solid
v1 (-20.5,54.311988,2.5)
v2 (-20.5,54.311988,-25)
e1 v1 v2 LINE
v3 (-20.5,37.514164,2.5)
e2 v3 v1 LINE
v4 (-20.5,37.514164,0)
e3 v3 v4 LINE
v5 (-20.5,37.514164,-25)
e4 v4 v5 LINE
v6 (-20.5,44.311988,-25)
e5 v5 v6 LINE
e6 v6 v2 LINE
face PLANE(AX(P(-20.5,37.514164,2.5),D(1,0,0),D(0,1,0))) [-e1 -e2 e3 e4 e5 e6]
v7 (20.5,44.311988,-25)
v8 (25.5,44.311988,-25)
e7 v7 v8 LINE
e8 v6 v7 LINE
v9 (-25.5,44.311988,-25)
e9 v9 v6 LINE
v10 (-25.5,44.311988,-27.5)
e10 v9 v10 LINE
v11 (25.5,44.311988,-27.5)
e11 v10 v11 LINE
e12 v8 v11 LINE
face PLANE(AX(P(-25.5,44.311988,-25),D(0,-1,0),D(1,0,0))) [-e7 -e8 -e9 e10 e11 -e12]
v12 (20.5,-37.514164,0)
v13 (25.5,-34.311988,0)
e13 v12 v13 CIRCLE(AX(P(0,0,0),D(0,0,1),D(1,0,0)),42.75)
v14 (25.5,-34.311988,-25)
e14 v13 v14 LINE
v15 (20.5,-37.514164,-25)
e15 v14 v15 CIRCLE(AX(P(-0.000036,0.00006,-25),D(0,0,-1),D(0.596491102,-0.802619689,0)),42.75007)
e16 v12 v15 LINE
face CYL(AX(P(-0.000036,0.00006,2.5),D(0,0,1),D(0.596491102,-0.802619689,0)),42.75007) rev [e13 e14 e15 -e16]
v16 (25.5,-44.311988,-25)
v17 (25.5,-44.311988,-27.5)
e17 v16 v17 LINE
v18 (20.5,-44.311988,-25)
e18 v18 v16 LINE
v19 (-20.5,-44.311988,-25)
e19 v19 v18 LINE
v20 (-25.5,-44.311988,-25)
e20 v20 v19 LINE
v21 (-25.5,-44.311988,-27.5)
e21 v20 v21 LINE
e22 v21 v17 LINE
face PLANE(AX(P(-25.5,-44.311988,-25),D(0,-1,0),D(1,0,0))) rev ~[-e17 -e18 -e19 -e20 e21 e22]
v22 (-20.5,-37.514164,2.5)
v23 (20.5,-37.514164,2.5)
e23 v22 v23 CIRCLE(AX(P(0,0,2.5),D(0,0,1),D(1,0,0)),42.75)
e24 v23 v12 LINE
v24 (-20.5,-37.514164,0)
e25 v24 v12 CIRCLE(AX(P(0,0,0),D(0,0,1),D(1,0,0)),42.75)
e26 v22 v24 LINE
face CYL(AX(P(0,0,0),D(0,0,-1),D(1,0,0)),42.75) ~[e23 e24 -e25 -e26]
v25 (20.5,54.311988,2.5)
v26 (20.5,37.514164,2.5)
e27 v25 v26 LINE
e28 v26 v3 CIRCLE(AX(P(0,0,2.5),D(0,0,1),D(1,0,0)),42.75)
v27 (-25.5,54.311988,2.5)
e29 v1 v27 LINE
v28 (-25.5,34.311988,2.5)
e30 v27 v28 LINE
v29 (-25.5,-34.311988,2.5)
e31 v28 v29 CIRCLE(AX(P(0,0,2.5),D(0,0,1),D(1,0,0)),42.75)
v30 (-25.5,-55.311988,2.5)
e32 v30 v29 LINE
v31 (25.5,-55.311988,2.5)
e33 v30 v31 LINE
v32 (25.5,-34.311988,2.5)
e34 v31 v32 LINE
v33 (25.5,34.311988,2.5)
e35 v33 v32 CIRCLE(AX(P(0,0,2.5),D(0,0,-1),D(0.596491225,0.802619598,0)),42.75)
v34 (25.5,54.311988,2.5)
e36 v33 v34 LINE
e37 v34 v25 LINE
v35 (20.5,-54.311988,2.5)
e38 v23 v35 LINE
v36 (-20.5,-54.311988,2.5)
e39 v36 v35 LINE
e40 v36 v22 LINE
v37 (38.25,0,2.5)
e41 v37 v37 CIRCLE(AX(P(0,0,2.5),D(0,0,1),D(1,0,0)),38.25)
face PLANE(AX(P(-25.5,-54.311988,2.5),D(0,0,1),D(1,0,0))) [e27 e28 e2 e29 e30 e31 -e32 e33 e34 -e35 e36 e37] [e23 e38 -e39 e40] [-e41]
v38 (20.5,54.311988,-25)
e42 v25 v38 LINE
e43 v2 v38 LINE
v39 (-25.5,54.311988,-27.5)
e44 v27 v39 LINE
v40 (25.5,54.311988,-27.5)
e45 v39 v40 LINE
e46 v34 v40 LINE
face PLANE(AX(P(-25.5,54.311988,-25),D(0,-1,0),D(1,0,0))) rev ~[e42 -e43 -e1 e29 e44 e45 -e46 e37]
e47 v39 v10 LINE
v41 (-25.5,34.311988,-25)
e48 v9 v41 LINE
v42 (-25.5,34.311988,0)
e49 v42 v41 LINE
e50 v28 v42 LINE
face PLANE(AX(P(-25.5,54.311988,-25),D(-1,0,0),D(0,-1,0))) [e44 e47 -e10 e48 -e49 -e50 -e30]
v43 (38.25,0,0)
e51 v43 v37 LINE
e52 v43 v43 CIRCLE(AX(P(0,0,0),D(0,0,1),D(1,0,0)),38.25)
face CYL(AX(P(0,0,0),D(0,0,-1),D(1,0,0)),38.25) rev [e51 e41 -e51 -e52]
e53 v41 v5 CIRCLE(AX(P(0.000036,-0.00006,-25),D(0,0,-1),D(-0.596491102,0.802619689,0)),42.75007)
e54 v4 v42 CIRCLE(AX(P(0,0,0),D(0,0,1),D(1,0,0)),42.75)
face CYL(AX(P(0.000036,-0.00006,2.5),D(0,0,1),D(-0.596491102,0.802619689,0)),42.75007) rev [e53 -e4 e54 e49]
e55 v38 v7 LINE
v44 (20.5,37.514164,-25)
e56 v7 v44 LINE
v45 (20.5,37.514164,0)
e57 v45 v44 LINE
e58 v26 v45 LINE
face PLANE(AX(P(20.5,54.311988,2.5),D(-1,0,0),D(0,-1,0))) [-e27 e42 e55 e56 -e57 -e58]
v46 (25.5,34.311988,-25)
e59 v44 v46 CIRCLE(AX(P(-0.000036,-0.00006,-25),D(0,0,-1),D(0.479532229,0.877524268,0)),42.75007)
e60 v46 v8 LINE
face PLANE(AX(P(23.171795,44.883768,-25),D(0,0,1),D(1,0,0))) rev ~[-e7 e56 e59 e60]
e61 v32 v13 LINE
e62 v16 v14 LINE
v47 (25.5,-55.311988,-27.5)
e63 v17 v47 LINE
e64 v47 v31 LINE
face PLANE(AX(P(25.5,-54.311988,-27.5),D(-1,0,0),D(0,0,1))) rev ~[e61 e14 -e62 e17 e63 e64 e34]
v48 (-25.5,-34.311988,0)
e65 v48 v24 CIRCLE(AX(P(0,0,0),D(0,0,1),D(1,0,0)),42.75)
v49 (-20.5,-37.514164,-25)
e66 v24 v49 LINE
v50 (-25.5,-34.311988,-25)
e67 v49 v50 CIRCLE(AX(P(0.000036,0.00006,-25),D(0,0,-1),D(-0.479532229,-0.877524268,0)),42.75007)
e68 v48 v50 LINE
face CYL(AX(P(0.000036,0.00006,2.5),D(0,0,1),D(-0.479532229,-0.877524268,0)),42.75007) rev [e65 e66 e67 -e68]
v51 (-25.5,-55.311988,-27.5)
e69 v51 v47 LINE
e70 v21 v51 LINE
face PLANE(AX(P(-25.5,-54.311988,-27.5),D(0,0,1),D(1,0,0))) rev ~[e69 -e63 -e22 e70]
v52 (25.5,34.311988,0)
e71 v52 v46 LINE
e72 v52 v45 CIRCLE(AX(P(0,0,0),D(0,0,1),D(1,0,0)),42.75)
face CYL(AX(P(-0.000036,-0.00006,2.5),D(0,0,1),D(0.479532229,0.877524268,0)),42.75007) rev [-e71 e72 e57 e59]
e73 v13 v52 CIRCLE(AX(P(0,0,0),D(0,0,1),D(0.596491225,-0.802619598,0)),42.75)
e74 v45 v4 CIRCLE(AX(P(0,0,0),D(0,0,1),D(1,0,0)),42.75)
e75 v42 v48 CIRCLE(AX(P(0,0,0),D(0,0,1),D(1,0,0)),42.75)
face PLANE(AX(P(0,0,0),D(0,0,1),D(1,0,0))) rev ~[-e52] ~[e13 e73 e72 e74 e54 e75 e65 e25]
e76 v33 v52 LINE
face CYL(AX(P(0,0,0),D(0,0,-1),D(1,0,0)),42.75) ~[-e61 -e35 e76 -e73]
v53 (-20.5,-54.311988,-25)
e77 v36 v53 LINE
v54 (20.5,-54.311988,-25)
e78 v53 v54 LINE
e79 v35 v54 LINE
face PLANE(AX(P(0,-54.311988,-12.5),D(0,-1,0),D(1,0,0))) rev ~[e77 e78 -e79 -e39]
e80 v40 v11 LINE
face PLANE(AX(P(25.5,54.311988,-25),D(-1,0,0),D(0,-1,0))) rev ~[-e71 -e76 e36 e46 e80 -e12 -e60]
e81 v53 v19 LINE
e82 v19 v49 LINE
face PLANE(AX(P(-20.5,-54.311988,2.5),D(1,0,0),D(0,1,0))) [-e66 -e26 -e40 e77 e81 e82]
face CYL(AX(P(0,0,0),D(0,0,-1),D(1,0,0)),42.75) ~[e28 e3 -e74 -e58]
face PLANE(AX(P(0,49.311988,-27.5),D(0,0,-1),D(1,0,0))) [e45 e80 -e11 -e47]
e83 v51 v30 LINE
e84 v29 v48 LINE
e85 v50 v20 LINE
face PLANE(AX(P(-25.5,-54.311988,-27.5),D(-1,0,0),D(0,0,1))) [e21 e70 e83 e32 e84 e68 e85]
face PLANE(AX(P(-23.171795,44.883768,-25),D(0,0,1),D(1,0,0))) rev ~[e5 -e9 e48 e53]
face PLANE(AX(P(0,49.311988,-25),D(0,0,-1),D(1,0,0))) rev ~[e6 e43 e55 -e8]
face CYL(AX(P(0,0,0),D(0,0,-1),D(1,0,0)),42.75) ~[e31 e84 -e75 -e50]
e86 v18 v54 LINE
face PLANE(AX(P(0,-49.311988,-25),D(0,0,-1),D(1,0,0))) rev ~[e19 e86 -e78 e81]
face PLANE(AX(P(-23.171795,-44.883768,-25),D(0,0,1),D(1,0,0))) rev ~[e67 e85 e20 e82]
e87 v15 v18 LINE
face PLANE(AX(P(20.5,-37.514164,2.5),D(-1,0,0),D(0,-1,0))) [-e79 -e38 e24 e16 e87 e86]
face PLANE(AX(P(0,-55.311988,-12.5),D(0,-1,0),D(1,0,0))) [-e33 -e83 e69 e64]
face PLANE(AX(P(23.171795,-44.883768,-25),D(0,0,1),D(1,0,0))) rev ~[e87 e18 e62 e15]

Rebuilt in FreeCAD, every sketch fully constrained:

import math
import FreeCAD as App
import Part
import Sketcher
Q = App.Units.Quantity

doc = App.newDocument("Part")
body = doc.addObject("PartDesign::Body", "Body")

# Sketch on XY plane
sketch1 = body.newObject("Sketcher::SketchObject", "Sketch")
sketch1.AttachmentSupport = (doc.getObject("XY_Plane"), [""])
sketch1.MapMode = "FlatFace"
sketch1.addGeometry(Part.Circle(App.Vector(0, 0, 0), App.Vector(0, 0, 1), 43), False)
sketch1.addGeometry(Part.Circle(App.Vector(0, 0, 0), App.Vector(0, 0, 1), 38), False)
sketch1.addConstraint(Sketcher.Constraint("Coincident", 0, 3, -1, 1))
sketch1.addConstraint(Sketcher.Constraint("Coincident", 1, 3, -1, 1))
sketch1.addConstraint(Sketcher.Constraint("Diameter", 0, Q("85.5 mm")))
sketch1.addConstraint(Sketcher.Constraint("Diameter", 1, Q("76.5 mm")))
pad1 = body.newObject("PartDesign::Pad", "Pad")
pad1.Profile = sketch1
pad1.Length = 2.5

# Sketch on XY plane
sketch2 = body.newObject("Sketcher::SketchObject", "Sketch001")
sketch2.AttachmentSupport = (doc.getObject("XY_Plane"), [""])
sketch2.MapMode = "FlatFace"
sketch2.AttachmentOffset = App.Placement(App.Vector(0, 0, 2.5), App.Rotation())
sketch2.addGeometry(Part.LineSegment(App.Vector(26, -54, 0), App.Vector(26, -34, 0)), False)
sketch2.addGeometry(Part.ArcOfCircle(Part.Circle(App.Vector(0, 0, 0), App.Vector(0, 0, 1), 43), math.radians(-61.35), math.radians(-53.38)), False)
sketch2.addGeometry(Part.LineSegment(App.Vector(20, -38, 0), App.Vector(20, -54, 0)), False)
sketch2.addGeometry(Part.LineSegment(App.Vector(20, -54, 0), App.Vector(26, -54, 0)), False)
sketch2.addGeometry(Part.ArcOfCircle(Part.Circle(App.Vector(0, 0, 0), App.Vector(0, 0, 1), 43), math.radians(-126.62), math.radians(-118.65)), False)
sketch2.addGeometry(Part.LineSegment(App.Vector(-26, -34, 0), App.Vector(-26, -54, 0)), False)
sketch2.addGeometry(Part.LineSegment(App.Vector(-26, -54, 0), App.Vector(-20, -54, 0)), False)
sketch2.addGeometry(Part.LineSegment(App.Vector(-20, -54, 0), App.Vector(-20, -38, 0)), False)
sketch2.addGeometry(Part.ArcOfCircle(Part.Circle(App.Vector(0, 0, 0), App.Vector(0, 0, 1), 43), math.radians(53.38), math.radians(61.35)), False)
sketch2.addGeometry(Part.LineSegment(App.Vector(26, 34, 0), App.Vector(26, 54, 0)), False)
sketch2.addGeometry(Part.LineSegment(App.Vector(26, 54, 0), App.Vector(20, 54, 0)), False)
sketch2.addGeometry(Part.LineSegment(App.Vector(20, 54, 0), App.Vector(20, 38, 0)), False)
sketch2.addGeometry(Part.LineSegment(App.Vector(-20, 54, 0), App.Vector(-26, 54, 0)), False)
sketch2.addGeometry(Part.LineSegment(App.Vector(-26, 54, 0), App.Vector(-26, 34, 0)), False)
sketch2.addGeometry(Part.ArcOfCircle(Part.Circle(App.Vector(0, 0, 0), App.Vector(0, 0, 1), 43), math.radians(118.65), math.radians(126.62)), False)
sketch2.addGeometry(Part.LineSegment(App.Vector(-20, 38, 0), App.Vector(-20, 54, 0)), False)
sketch2.addConstraint(Sketcher.Constraint("Coincident", 0, 2, 1, 2))
sketch2.addConstraint(Sketcher.Constraint("Coincident", 1, 1, 2, 1))
sketch2.addConstraint(Sketcher.Constraint("Coincident", 2, 2, 3, 1))
sketch2.addConstraint(Sketcher.Constraint("Coincident", 3, 2, 0, 1))
sketch2.addConstraint(Sketcher.Constraint("Coincident", 4, 1, 5, 1))
sketch2.addConstraint(Sketcher.Constraint("Coincident", 5, 2, 6, 1))
sketch2.addConstraint(Sketcher.Constraint("Coincident", 6, 2, 7, 1))
sketch2.addConstraint(Sketcher.Constraint("Coincident", 7, 2, 4, 2))
sketch2.addConstraint(Sketcher.Constraint("Coincident", 8, 1, 9, 1))
sketch2.addConstraint(Sketcher.Constraint("Coincident", 9, 2, 10, 1))
sketch2.addConstraint(Sketcher.Constraint("Coincident", 10, 2, 11, 1))
sketch2.addConstraint(Sketcher.Constraint("Coincident", 11, 2, 8, 2))
sketch2.addConstraint(Sketcher.Constraint("Coincident", 12, 2, 13, 1))
sketch2.addConstraint(Sketcher.Constraint("Coincident", 13, 2, 14, 2))
sketch2.addConstraint(Sketcher.Constraint("Coincident", 14, 1, 15, 1))
sketch2.addConstraint(Sketcher.Constraint("Coincident", 15, 2, 12, 1))
sketch2.addConstraint(Sketcher.Constraint("Vertical", 0))
sketch2.addConstraint(Sketcher.Constraint("Vertical", 2))
sketch2.addConstraint(Sketcher.Constraint("Horizontal", 3))
sketch2.addConstraint(Sketcher.Constraint("Vertical", 5))
sketch2.addConstraint(Sketcher.Constraint("Horizontal", 6))
sketch2.addConstraint(Sketcher.Constraint("Vertical", 7))
sketch2.addConstraint(Sketcher.Constraint("Vertical", 9))
sketch2.addConstraint(Sketcher.Constraint("Horizontal", 10))
sketch2.addConstraint(Sketcher.Constraint("Vertical", 11))
sketch2.addConstraint(Sketcher.Constraint("Horizontal", 12))
sketch2.addConstraint(Sketcher.Constraint("Vertical", 13))
sketch2.addConstraint(Sketcher.Constraint("Vertical", 15))
sketch2.addConstraint(Sketcher.Constraint("Equal", 1, 4))
sketch2.addConstraint(Sketcher.Constraint("Equal", 4, 8))
sketch2.addConstraint(Sketcher.Constraint("Equal", 8, 14))
sketch2.addConstraint(Sketcher.Constraint("Symmetric", 4, 3, 8, 3, -1, 1))
sketch2.addConstraint(Sketcher.Constraint("Symmetric", 1, 3, 14, 3, -1, 1))
sketch2.addConstraint(Sketcher.Constraint("Symmetric", 5, 2, 9, 2, -1, 1))
sketch2.addConstraint(Sketcher.Constraint("Symmetric", 3, 2, 12, 2, -1, 1))
sketch2.addConstraint(Sketcher.Constraint("Symmetric", 1, 3, 4, 3, -2))
sketch2.addConstraint(Sketcher.Constraint("Symmetric", 3, 2, 5, 2, -2))
sketch2.addConstraint(Sketcher.Constraint("Horizontal", 1, 1, 7, 2))
sketch2.addConstraint(Sketcher.Constraint("Horizontal", 11, 2, 14, 1))
sketch2.addConstraint(Sketcher.Constraint("Vertical", 2, 2, 10, 2))
sketch2.addConstraint(Sketcher.Constraint("DistanceX", 3, 1, 3, 2, Q("5 mm")))
sketch2.addConstraint(Sketcher.Constraint("DistanceY", 0, 1, 0, 2, Q("20 mm")))
sketch2.addConstraint(Sketcher.Constraint("DistanceX", 4, 1, 1, 1, Q("46 mm")))
sketch2.addConstraint(Sketcher.Constraint("Radius", 1, Q("42.75007 mm")))
sketch2.addConstraint(Sketcher.Constraint("DistanceY", 2, 2, 2, 1, Q("16.797824 mm")))
sketch2.addConstraint(Sketcher.Constraint("DistanceY", 8, 3, 1, 3, Q("0.000119 mm")))
pad2 = body.newObject("PartDesign::Pad", "Pad001")
pad2.Profile = sketch2
pad2.Length = 27.5
pad2.Reversed = True

# Sketch on XY plane
sketch3 = body.newObject("Sketcher::SketchObject", "Sketch002")
sketch3.AttachmentSupport = (doc.getObject("XY_Plane"), [""])
sketch3.MapMode = "FlatFace"
sketch3.AttachmentOffset = App.Placement(App.Vector(0, 0, -25), App.Rotation())
sketch3.addGeometry(Part.LineSegment(App.Vector(-26, 44, 0), App.Vector(-26, 54, 0)), False)
sketch3.addGeometry(Part.LineSegment(App.Vector(-26, 54, 0), App.Vector(26, 54, 0)), False)
sketch3.addGeometry(Part.LineSegment(App.Vector(26, 54, 0), App.Vector(26, 44, 0)), False)
sketch3.addGeometry(Part.LineSegment(App.Vector(26, 44, 0), App.Vector(-26, 44, 0)), False)
sketch3.addGeometry(Part.LineSegment(App.Vector(-26, -54, 0), App.Vector(-26, -44, 0)), False)
sketch3.addGeometry(Part.LineSegment(App.Vector(-26, -44, 0), App.Vector(26, -44, 0)), False)
sketch3.addGeometry(Part.LineSegment(App.Vector(26, -44, 0), App.Vector(26, -54, 0)), False)
sketch3.addGeometry(Part.LineSegment(App.Vector(26, -54, 0), App.Vector(-26, -54, 0)), False)
sketch3.addConstraint(Sketcher.Constraint("Coincident", 0, 2, 1, 1))
sketch3.addConstraint(Sketcher.Constraint("Coincident", 1, 2, 2, 1))
sketch3.addConstraint(Sketcher.Constraint("Coincident", 2, 2, 3, 1))
sketch3.addConstraint(Sketcher.Constraint("Coincident", 3, 2, 0, 1))
sketch3.addConstraint(Sketcher.Constraint("Coincident", 4, 2, 5, 1))
sketch3.addConstraint(Sketcher.Constraint("Coincident", 5, 2, 6, 1))
sketch3.addConstraint(Sketcher.Constraint("Coincident", 6, 2, 7, 1))
sketch3.addConstraint(Sketcher.Constraint("Coincident", 7, 2, 4, 1))
sketch3.addConstraint(Sketcher.Constraint("Vertical", 0))
sketch3.addConstraint(Sketcher.Constraint("Horizontal", 1))
sketch3.addConstraint(Sketcher.Constraint("Vertical", 2))
sketch3.addConstraint(Sketcher.Constraint("Horizontal", 3))
sketch3.addConstraint(Sketcher.Constraint("Vertical", 4))
sketch3.addConstraint(Sketcher.Constraint("Horizontal", 5))
sketch3.addConstraint(Sketcher.Constraint("Vertical", 6))
sketch3.addConstraint(Sketcher.Constraint("Horizontal", 7))
sketch3.addConstraint(Sketcher.Constraint("Symmetric", 2, 2, 4, 2, -1, 1))
sketch3.addConstraint(Sketcher.Constraint("Symmetric", 0, 2, 6, 2, -1, 1))
sketch3.addConstraint(Sketcher.Constraint("Vertical", 3, 2, 4, 2))
sketch3.addConstraint(Sketcher.Constraint("DistanceX", 1, 1, 1, 2, Q("51 mm")))
sketch3.addConstraint(Sketcher.Constraint("DistanceY", 0, 1, 0, 2, Q("10 mm")))
sketch3.addConstraint(Sketcher.Constraint("DistanceY", -1, 1, 0, 2, Q("54.311988 mm")))
pad3 = body.newObject("PartDesign::Pad", "Pad002")
pad3.Profile = sketch3
pad3.Length = 2.5
pad3.Reversed = True

# Sketch on XZ plane
sketch4 = body.newObject("Sketcher::SketchObject", "Sketch003")
sketch4.AttachmentSupport = (doc.getObject("XZ_Plane"), [""])
sketch4.MapMode = "FlatFace"
sketch4.AttachmentOffset = App.Placement(App.Vector(0, 0, 54.311988), App.Rotation())
sketch4.addGeometry(Part.LineSegment(App.Vector(-26, 2, 0), App.Vector(-26, -28, 0)), False)
sketch4.addGeometry(Part.LineSegment(App.Vector(-26, -28, 0), App.Vector(26, -28, 0)), False)
sketch4.addGeometry(Part.LineSegment(App.Vector(26, -28, 0), App.Vector(26, 2, 0)), False)
sketch4.addGeometry(Part.LineSegment(App.Vector(26, 2, 0), App.Vector(-26, 2, 0)), False)
sketch4.addConstraint(Sketcher.Constraint("Coincident", 0, 2, 1, 1))
sketch4.addConstraint(Sketcher.Constraint("Coincident", 1, 2, 2, 1))
sketch4.addConstraint(Sketcher.Constraint("Coincident", 2, 2, 3, 1))
sketch4.addConstraint(Sketcher.Constraint("Coincident", 3, 2, 0, 1))
sketch4.addConstraint(Sketcher.Constraint("Vertical", 0))
sketch4.addConstraint(Sketcher.Constraint("Horizontal", 1))
sketch4.addConstraint(Sketcher.Constraint("Vertical", 2))
sketch4.addConstraint(Sketcher.Constraint("Horizontal", 3))
sketch4.addConstraint(Sketcher.Constraint("DistanceX", 1, 1, 1, 2, Q("51 mm")))
sketch4.addConstraint(Sketcher.Constraint("DistanceY", 0, 2, 0, 1, Q("30 mm")))
sketch4.addConstraint(Sketcher.Constraint("DistanceX", 0, 2, -1, 1, Q("25.5 mm")))
sketch4.addConstraint(Sketcher.Constraint("DistanceY", 0, 2, -1, 1, Q("27.5 mm")))
pad4 = body.newObject("PartDesign::Pad", "Pad003")
pad4.Profile = sketch4
pad4.Length = 1

doc.recompute()
